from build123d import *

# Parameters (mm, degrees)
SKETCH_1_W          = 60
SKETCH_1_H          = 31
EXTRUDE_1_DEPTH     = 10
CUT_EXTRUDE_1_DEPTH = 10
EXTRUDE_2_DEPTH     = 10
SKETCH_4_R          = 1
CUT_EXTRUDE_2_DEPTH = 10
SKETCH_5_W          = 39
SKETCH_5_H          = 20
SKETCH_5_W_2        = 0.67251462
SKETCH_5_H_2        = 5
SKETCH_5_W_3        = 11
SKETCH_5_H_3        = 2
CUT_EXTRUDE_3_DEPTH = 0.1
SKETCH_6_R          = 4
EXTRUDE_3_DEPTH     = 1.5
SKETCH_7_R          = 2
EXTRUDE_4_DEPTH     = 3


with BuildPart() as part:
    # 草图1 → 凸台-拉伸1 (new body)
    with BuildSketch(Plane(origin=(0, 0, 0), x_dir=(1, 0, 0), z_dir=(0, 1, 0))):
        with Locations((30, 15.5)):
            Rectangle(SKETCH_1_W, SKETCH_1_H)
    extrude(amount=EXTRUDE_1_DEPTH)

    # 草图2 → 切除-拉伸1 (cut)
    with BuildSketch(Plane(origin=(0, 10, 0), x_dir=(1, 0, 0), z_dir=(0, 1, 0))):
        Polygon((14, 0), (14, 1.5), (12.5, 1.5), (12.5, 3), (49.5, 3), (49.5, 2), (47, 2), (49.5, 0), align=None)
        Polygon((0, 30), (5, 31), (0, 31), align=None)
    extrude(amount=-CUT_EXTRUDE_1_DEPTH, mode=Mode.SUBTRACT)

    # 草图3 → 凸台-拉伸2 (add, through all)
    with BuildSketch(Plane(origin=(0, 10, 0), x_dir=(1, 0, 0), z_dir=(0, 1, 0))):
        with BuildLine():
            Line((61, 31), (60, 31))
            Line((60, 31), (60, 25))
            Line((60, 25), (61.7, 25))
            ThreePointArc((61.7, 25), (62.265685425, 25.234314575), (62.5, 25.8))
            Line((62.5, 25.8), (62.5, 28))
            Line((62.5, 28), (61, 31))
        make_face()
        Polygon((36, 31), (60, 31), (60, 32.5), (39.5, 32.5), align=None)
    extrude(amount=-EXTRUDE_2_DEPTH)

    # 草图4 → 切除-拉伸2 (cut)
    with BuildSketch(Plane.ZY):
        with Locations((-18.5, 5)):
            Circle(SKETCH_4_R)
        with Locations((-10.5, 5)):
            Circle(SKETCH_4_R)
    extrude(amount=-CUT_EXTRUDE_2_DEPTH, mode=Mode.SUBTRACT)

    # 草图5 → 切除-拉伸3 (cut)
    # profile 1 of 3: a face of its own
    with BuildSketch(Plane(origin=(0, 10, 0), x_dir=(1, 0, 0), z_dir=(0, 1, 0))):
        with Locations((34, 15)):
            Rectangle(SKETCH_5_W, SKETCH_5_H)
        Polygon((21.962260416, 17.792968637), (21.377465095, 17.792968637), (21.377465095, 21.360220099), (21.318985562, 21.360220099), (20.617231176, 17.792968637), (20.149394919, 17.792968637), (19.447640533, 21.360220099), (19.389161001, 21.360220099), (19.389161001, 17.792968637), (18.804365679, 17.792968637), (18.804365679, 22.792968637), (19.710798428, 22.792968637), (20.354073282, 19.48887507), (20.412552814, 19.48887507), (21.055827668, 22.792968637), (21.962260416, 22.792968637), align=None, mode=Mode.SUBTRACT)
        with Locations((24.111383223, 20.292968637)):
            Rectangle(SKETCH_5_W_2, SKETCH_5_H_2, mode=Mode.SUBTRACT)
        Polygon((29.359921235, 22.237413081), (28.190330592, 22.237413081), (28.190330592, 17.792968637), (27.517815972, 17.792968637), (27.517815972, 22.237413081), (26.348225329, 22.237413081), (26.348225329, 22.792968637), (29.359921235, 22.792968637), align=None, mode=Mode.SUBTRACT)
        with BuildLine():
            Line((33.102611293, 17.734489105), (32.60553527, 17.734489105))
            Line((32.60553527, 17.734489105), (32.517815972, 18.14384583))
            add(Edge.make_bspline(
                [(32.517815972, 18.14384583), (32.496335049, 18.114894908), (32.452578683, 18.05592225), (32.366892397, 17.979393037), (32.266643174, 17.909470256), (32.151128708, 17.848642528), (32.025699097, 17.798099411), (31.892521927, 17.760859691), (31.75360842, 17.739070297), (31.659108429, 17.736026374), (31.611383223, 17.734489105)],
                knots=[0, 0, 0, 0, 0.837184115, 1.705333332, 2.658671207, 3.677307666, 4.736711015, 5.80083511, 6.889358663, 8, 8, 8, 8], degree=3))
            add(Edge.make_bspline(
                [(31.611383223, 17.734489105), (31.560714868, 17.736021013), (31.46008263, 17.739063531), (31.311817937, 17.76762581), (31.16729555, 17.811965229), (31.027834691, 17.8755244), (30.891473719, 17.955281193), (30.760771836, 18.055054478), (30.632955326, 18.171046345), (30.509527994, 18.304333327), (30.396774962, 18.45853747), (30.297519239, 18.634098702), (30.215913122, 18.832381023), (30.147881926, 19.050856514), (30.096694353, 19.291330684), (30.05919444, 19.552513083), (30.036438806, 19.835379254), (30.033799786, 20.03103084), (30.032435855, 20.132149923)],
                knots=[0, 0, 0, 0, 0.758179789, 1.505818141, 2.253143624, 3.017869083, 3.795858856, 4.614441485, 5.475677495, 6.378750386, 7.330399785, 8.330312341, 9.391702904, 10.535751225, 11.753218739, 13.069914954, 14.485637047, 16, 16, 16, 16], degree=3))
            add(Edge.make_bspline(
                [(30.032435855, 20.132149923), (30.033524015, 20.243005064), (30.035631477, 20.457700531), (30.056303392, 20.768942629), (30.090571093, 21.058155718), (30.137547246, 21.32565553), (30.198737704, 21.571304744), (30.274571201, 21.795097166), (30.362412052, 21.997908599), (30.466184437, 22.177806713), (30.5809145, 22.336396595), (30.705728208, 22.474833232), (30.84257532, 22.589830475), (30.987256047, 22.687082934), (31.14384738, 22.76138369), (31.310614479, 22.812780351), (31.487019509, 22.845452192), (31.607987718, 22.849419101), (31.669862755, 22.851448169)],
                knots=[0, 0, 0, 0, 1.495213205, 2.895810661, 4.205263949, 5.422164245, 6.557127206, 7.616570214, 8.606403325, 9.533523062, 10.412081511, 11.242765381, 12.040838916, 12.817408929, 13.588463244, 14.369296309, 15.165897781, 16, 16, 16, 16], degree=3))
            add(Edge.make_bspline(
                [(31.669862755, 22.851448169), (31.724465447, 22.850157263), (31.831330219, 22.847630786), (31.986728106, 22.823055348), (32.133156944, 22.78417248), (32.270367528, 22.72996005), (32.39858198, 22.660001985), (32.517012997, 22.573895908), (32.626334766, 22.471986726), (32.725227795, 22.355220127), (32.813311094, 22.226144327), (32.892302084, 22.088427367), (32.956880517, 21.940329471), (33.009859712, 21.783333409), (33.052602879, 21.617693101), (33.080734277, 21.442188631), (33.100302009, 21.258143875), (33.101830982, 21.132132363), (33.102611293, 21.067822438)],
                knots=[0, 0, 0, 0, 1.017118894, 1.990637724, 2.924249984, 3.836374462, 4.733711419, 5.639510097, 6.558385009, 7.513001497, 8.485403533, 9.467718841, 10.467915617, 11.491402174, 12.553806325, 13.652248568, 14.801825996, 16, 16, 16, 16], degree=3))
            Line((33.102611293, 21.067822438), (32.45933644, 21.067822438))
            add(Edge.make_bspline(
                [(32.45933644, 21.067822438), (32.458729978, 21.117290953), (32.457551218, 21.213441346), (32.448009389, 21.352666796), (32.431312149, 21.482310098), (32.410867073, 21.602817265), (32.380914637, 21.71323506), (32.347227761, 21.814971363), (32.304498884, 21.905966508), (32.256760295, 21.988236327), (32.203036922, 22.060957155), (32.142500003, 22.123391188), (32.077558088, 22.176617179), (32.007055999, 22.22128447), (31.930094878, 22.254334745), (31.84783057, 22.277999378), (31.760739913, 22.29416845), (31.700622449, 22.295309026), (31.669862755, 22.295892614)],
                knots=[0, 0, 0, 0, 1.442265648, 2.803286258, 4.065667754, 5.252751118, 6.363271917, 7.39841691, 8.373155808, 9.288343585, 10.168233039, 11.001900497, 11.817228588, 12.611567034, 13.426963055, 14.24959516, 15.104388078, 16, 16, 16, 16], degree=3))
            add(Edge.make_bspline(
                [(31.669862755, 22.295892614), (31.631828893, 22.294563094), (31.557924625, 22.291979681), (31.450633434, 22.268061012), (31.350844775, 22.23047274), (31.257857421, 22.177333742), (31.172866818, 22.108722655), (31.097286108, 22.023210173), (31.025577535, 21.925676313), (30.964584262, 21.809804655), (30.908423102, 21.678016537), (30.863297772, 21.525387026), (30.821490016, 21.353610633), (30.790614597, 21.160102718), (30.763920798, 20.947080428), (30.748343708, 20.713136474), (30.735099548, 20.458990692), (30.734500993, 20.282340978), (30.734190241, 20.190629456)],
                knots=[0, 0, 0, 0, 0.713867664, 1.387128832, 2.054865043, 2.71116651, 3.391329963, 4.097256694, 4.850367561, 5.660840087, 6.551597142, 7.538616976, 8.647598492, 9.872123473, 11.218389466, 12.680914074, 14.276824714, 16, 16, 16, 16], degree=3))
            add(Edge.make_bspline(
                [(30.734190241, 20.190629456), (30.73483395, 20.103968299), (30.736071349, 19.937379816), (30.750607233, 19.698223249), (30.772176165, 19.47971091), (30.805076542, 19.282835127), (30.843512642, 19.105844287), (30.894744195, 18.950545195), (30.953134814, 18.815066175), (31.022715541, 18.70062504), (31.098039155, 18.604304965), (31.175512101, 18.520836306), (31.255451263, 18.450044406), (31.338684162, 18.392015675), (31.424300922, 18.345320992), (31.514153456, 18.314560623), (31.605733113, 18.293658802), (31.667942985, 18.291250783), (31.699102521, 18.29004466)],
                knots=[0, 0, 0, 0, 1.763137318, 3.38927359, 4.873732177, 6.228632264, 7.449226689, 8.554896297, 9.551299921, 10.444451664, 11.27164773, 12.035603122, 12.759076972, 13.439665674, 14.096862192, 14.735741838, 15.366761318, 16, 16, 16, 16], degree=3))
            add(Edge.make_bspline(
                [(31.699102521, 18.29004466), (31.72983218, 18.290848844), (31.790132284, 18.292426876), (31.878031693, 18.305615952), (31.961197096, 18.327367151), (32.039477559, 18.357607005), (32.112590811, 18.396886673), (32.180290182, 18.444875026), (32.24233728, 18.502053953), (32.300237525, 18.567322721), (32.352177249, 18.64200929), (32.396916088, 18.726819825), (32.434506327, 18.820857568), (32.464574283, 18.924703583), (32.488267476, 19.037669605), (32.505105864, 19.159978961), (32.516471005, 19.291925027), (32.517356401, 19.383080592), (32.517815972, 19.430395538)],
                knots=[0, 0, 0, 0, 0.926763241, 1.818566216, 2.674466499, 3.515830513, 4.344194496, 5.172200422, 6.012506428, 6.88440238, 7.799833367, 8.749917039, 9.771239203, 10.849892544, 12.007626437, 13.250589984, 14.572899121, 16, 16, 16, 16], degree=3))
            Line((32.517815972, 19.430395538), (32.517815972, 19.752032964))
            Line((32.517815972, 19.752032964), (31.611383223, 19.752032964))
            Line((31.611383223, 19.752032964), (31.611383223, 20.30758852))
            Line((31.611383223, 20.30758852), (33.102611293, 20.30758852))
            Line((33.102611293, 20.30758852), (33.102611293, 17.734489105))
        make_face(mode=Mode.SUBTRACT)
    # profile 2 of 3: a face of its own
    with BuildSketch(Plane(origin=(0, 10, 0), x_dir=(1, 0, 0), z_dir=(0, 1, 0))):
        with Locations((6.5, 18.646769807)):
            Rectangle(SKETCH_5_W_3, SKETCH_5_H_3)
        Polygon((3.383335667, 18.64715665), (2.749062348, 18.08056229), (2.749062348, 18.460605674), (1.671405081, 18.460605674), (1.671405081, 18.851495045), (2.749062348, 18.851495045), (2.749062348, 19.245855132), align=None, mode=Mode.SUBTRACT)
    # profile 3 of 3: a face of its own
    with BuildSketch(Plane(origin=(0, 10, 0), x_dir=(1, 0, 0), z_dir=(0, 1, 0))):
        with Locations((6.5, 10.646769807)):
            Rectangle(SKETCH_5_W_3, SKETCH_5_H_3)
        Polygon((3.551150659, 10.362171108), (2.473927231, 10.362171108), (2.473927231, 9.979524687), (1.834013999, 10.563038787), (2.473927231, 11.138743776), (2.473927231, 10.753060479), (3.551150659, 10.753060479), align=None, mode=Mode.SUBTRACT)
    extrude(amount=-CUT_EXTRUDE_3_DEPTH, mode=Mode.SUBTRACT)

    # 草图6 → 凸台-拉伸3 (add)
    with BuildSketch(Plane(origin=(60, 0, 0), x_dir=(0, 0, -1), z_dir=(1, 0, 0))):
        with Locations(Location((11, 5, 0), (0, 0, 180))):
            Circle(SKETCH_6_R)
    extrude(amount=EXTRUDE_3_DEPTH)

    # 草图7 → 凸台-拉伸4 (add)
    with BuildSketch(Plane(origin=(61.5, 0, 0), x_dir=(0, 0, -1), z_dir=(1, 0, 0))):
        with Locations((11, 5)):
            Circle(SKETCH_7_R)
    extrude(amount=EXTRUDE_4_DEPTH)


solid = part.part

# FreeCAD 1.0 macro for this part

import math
import FreeCAD as App
import Part
import Sketcher

V = App.Vector
Q = App.Units.Quantity

doc = App.newDocument("Part")
body = doc.addObject("PartDesign::Body", "Body")

sketch1 = body.newObject("Sketcher::SketchObject", "Sketch")
sketch1.AttachmentSupport = (doc.getObject("XZ_Plane"), [""])
sketch1.MapMode = "FlatFace"
sketch1.addGeometry(Part.LineSegment(V(0, -31, 0), V(0, 0, 0)), False)
sketch1.addGeometry(Part.LineSegment(V(0, 0, 0), V(60, 0, 0)), False)
sketch1.addGeometry(Part.LineSegment(V(60, 0, 0), V(60, -31, 0)), False)
sketch1.addGeometry(Part.LineSegment(V(60, -31, 0), V(0, -31, 0)), False)
sketch1.addConstraint(Sketcher.Constraint("Coincident", 0, 2, 1, 1))
sketch1.addConstraint(Sketcher.Constraint("Coincident", 1, 2, 2, 1))
sketch1.addConstraint(Sketcher.Constraint("Coincident", 2, 2, 3, 1))
sketch1.addConstraint(Sketcher.Constraint("Coincident", 3, 2, 0, 1))
sketch1.addConstraint(Sketcher.Constraint("Vertical", 0))
sketch1.addConstraint(Sketcher.Constraint("Horizontal", 1))
sketch1.addConstraint(Sketcher.Constraint("Vertical", 2))
sketch1.addConstraint(Sketcher.Constraint("Horizontal", 3))
sketch1.addConstraint(Sketcher.Constraint("Coincident", 0, 2, -1, 1))
sketch1.addConstraint(Sketcher.Constraint("DistanceX", 1, 1, 1, 2, Q("60 mm")))
sketch1.addConstraint(Sketcher.Constraint("DistanceY", 0, 1, 0, 2, Q("31 mm")))
pad1 = body.newObject("PartDesign::Pad", "Pad")
pad1.Profile = sketch1
pad1.Length = 10
pad1.Reversed = True

sketch2 = body.newObject("Sketcher::SketchObject", "Sketch001")
sketch2.AttachmentSupport = (doc.getObject("XZ_Plane"), [""])
sketch2.MapMode = "FlatFace"
sketch2.AttachmentOffset = App.Placement(V(0, 0, -10), App.Rotation())
sketch2.addGeometry(Part.LineSegment(V(14, -1.5, 0), V(14, 0, 0)), False)
sketch2.addGeometry(Part.LineSegment(V(14, 0, 0), V(49.5, 0, 0)), False)
sketch2.addGeometry(Part.LineSegment(V(49.5, 0, 0), V(47, -2, 0)), False)
sketch2.addGeometry(Part.LineSegment(V(47, -2, 0), V(49.5, -2, 0)), False)
sketch2.addGeometry(Part.LineSegment(V(49.5, -2, 0), V(49.5, -3, 0)), False)
sketch2.addGeometry(Part.LineSegment(V(49.5, -3, 0), V(12.5, -3, 0)), False)
sketch2.addGeometry(Part.LineSegment(V(12.5, -3, 0), V(12.5, -1.5, 0)), False)
sketch2.addGeometry(Part.LineSegment(V(12.5, -1.5, 0), V(14, -1.5, 0)), False)
sketch2.addGeometry(Part.LineSegment(V(0, -30, 0), V(5, -31, 0)), False)
sketch2.addGeometry(Part.LineSegment(V(5, -31, 0), V(0, -31, 0)), False)
sketch2.addGeometry(Part.LineSegment(V(0, -31, 0), V(0, -30, 0)), False)
sketch2.addConstraint(Sketcher.Constraint("Coincident", 0, 2, 1, 1))
sketch2.addConstraint(Sketcher.Constraint("Coincident", 1, 2, 2, 1))
sketch2.addConstraint(Sketcher.Constraint("Coincident", 2, 2, 3, 1))
sketch2.addConstraint(Sketcher.Constraint("Coincident", 3, 2, 4, 1))
sketch2.addConstraint(Sketcher.Constraint("Coincident", 4, 2, 5, 1))
sketch2.addConstraint(Sketcher.Constraint("Coincident", 5, 2, 6, 1))
sketch2.addConstraint(Sketcher.Constraint("Coincident", 6, 2, 7, 1))
sketch2.addConstraint(Sketcher.Constraint("Coincident", 7, 2, 0, 1))
sketch2.addConstraint(Sketcher.Constraint("Coincident", 8, 2, 9, 1))
sketch2.addConstraint(Sketcher.Constraint("Coincident", 9, 2, 10, 1))
sketch2.addConstraint(Sketcher.Constraint("Coincident", 10, 2, 8, 1))
sketch2.addConstraint(Sketcher.Constraint("Vertical", 0))
sketch2.addConstraint(Sketcher.Constraint("Horizontal", 1))
sketch2.addConstraint(Sketcher.Constraint("Horizontal", 3))
sketch2.addConstraint(Sketcher.Constraint("Vertical", 4))
sketch2.addConstraint(Sketcher.Constraint("Horizontal", 5))
sketch2.addConstraint(Sketcher.Constraint("Vertical", 6))
sketch2.addConstraint(Sketcher.Constraint("Horizontal", 7))
sketch2.addConstraint(Sketcher.Constraint("Horizontal", 9))
sketch2.addConstraint(Sketcher.Constraint("Vertical", 10))
sketch2.addConstraint(Sketcher.Constraint("PointOnObject", 0, 2, -1))
sketch2.addConstraint(Sketcher.Constraint("PointOnObject", 9, 2, -2))
sketch2.addConstraint(Sketcher.Constraint("Vertical", 1, 2, 3, 2))
sketch2.addConstraint(Sketcher.Constraint("Equal", 7, 0))
sketch2.addConstraint(Sketcher.Constraint("Equal", 0, 6))
sketch2.addConstraint(Sketcher.Constraint("Equal", 4, 10))
sketch2.addConstraint(Sketcher.Constraint("DistanceX", 5, 2, 5, 1, Q("37 mm")))
sketch2.addConstraint(Sketcher.Constraint("DistanceX", 9, 2, 9, 1, Q("5 mm")))
sketch2.addConstraint(Sketcher.Constraint("DistanceY", 4, 2, 4, 1, Q("1 mm")))
sketch2.addConstraint(Sketcher.Constraint("DistanceX", 1, 1, 1, 2, Q("35.5 mm")))
sketch2.addConstraint(Sketcher.Constraint("DistanceX", 3, 1, 3, 2, Q("2.5 mm")))
sketch2.addConstraint(Sketcher.Constraint("DistanceX", -1, 1, 0, 2, Q("14 mm")))
sketch2.addConstraint(Sketcher.Constraint("DistanceY", 8, 2, -1, 1, Q("31 mm")))
pocket1 = body.newObject("PartDesign::Pocket", "Pocket")
pocket1.Profile = sketch2
pocket1.Length = 10
pocket1.Reversed = True

sketch3 = body.newObject("Sketcher::SketchObject", "Sketch002")
sketch3.AttachmentSupport = (doc.getObject("XZ_Plane"), [""])
sketch3.MapMode = "FlatFace"
sketch3.AttachmentOffset = App.Placement(V(0, 0, -10), App.Rotation())
sketch3.addGeometry(Part.LineSegment(V(61, -31, 0), V(60, -31, 0)), False)
sketch3.addGeometry(Part.LineSegment(V(60, -31, 0), V(60, -25, 0)), False)
sketch3.addGeometry(Part.LineSegment(V(60, -25, 0), V(61.7, -25, 0)), False)
sketch3.addGeometry(Part.ArcOfCircle(Part.Circle(V(61.7, -25.8, 0), V(0, 0, 1), 0.8), math.radians(0), math.radians(90)), False)
sketch3.addGeometry(Part.LineSegment(V(62.5, -25.8, 0), V(62.5, -28, 0)), False)
sketch3.addGeometry(Part.LineSegment(V(62.5, -28, 0), V(61, -31, 0)), False)
sketch3.addGeometry(Part.LineSegment(V(36, -31, 0), V(60, -31, 0)), False)
sketch3.addGeometry(Part.LineSegment(V(60, -31, 0), V(60, -32.5, 0)), False)
sketch3.addGeometry(Part.LineSegment(V(60, -32.5, 0), V(39.5, -32.5, 0)), False)
sketch3.addGeometry(Part.LineSegment(V(39.5, -32.5, 0), V(36, -31, 0)), False)
sketch3.addConstraint(Sketcher.Constraint("Coincident", 0, 2, 1, 1))
sketch3.addConstraint(Sketcher.Constraint("Coincident", 1, 2, 2, 1))
sketch3.addConstraint(Sketcher.Constraint("Tangent", 2, 2, 3, 2))
sketch3.addConstraint(Sketcher.Constraint("Tangent", 3, 1, 4, 1))
sketch3.addConstraint(Sketcher.Constraint("Coincident", 4, 2, 5, 1))
sketch3.addConstraint(Sketcher.Constraint("Coincident", 5, 2, 0, 1))
sketch3.addConstraint(Sketcher.Constraint("Coincident", 6, 2, 7, 1))
sketch3.addConstraint(Sketcher.Constraint("Coincident", 7, 2, 8, 1))
sketch3.addConstraint(Sketcher.Constraint("Coincident", 8, 2, 9, 1))
sketch3.addConstraint(Sketcher.Constraint("Coincident", 9, 2, 6, 1))
sketch3.addConstraint(Sketcher.Constraint("Horizontal", 0))
sketch3.addConstraint(Sketcher.Constraint("Vertical", 1))
sketch3.addConstraint(Sketcher.Constraint("Horizontal", 2))
sketch3.addConstraint(Sketcher.Constraint("Vertical", 4))
sketch3.addConstraint(Sketcher.Constraint("Horizontal", 6))
sketch3.addConstraint(Sketcher.Constraint("Vertical", 7))
sketch3.addConstraint(Sketcher.Constraint("Horizontal", 8))
sketch3.addConstraint(Sketcher.Constraint("Coincident", 6, 2, 0, 2))
sketch3.addConstraint(Sketcher.Constraint("Radius", 3, Q("0.8 mm")))
sketch3.addConstraint(Sketcher.Constraint("DistanceX", 0, 2, 0, 1, Q("1 mm")))
sketch3.addConstraint(Sketcher.Constraint("DistanceX", 6, 1, 6, 2, Q("24 mm")))
sketch3.addConstraint(Sketcher.Constraint("DistanceY", 1, 1, 1, 2, Q("6 mm")))
sketch3.addConstraint(Sketcher.Constraint("DistanceX", 2, 1, 2, 2, Q("1.7 mm")))
sketch3.addConstraint(Sketcher.Constraint("DistanceX", 8, 2, 8, 1, Q("20.5 mm")))
sketch3.addConstraint(Sketcher.Constraint("DistanceY", 4, 2, 4, 1, Q("2.2 mm")))
sketch3.addConstraint(Sketcher.Constraint("DistanceY", 7, 2, 7, 1, Q("1.5 mm")))
sketch3.addConstraint(Sketcher.Constraint("DistanceX", -1, 1, 0, 2, Q("60 mm")))
sketch3.addConstraint(Sketcher.Constraint("DistanceY", 0, 2, -1, 1, Q("31 mm")))
pad2 = body.newObject("PartDesign::Pad", "Pad001")
pad2.Profile = sketch3
pad2.Type = "UpToLast"

sketch4 = body.newObject("Sketcher::SketchObject", "Sketch003")
sketch4.AttachmentSupport = (doc.getObject("YZ_Plane"), [""])
sketch4.MapMode = "FlatFace"
sketch4.addGeometry(Part.Circle(V(5, -18.5, 0), V(0, 0, 1), 1), False)
sketch4.addGeometry(Part.Circle(V(5, -10.5, 0), V(0, 0, 1), 1), False)
sketch4.addConstraint(Sketcher.Constraint("Equal", 0, 1))
sketch4.addConstraint(Sketcher.Constraint("Vertical", 0, 3, 1, 3))
sketch4.addConstraint(Sketcher.Constraint("Diameter", 0, Q("2 mm")))
sketch4.addConstraint(Sketcher.Constraint("DistanceX", -1, 1, 0, 3, Q("5 mm")))
sketch4.addConstraint(Sketcher.Constraint("DistanceY", 0, 3, 1, 3, Q("8 mm")))
sketch4.addConstraint(Sketcher.Constraint("DistanceY", 0, 3, -1, 1, Q("18.5 mm")))
pocket2 = body.newObject("PartDesign::Pocket", "Pocket001")
pocket2.Profile = sketch4
pocket2.Length = 10
pocket2.Reversed = True

sketch5 = body.newObject("Sketcher::SketchObject", "Sketch004")
sketch5.AttachmentSupport = (doc.getObject("XZ_Plane"), [""])
sketch5.MapMode = "FlatFace"
sketch5.AttachmentOffset = App.Placement(V(0, 0, -10), App.Rotation())
sketch5.addGeometry(Part.LineSegment(V(14.5, -25, 0), V(14.5, -5, 0)), False)
sketch5.addGeometry(Part.LineSegment(V(14.5, -5, 0), V(53.5, -5, 0)), False)
sketch5.addGeometry(Part.LineSegment(V(53.5, -5, 0), V(53.5, -25, 0)), False)
sketch5.addGeometry(Part.LineSegment(V(53.5, -25, 0), V(14.5, -25, 0)), False)
sketch5.addGeometry(Part.LineSegment(V(21.96226, -22.792969, 0), V(21.96226, -17.792969, 0)), False)
sketch5.addGeometry(Part.LineSegment(V(21.96226, -17.792969, 0), V(21.377465, -17.792969, 0)), False)
sketch5.addGeometry(Part.LineSegment(V(21.377465, -17.792969, 0), V(21.377465, -21.36022, 0)), False)
sketch5.addGeometry(Part.LineSegment(V(21.377465, -21.36022, 0), V(21.318986, -21.36022, 0)), False)
sketch5.addGeometry(Part.LineSegment(V(21.318986, -21.36022, 0), V(20.617231, -17.792969, 0)), False)
sketch5.addGeometry(Part.LineSegment(V(20.617231, -17.792969, 0), V(20.149395, -17.792969, 0)), False)
sketch5.addGeometry(Part.LineSegment(V(20.149395, -17.792969, 0), V(19.447641, -21.36022, 0)), False)
sketch5.addGeometry(Part.LineSegment(V(19.447641, -21.36022, 0), V(19.389161, -21.36022, 0)), False)
sketch5.addGeometry(Part.LineSegment(V(19.389161, -21.36022, 0), V(19.389161, -17.792969, 0)), False)
sketch5.addGeometry(Part.LineSegment(V(19.389161, -17.792969, 0), V(18.804366, -17.792969, 0)), False)
sketch5.addGeometry(Part.LineSegment(V(18.804366, -17.792969, 0), V(18.804366, -22.792969, 0)), False)
sketch5.addGeometry(Part.LineSegment(V(18.804366, -22.792969, 0), V(19.710798, -22.792969, 0)), False)
sketch5.addGeometry(Part.LineSegment(V(19.710798, -22.792969, 0), V(20.354073, -19.488875, 0)), False)
sketch5.addGeometry(Part.LineSegment(V(20.354073, -19.488875, 0), V(20.412553, -19.488875, 0)), False)
sketch5.addGeometry(Part.LineSegment(V(20.412553, -19.488875, 0), V(21.055828, -22.792969, 0)), False)
sketch5.addGeometry(Part.LineSegment(V(21.055828, -22.792969, 0), V(21.96226, -22.792969, 0)), False)
sketch5.addGeometry(Part.LineSegment(V(24.447641, -17.792969, 0), V(23.775126, -17.792969, 0)), False)
sketch5.addGeometry(Part.LineSegment(V(23.775126, -17.792969, 0), V(23.775126, -22.792969, 0)), False)
sketch5.addGeometry(Part.LineSegment(V(23.775126, -22.792969, 0), V(24.447641, -22.792969, 0)), False)
sketch5.addGeometry(Part.LineSegment(V(24.447641, -22.792969, 0), V(24.447641, -17.792969, 0)), False)
sketch5.addGeometry(Part.LineSegment(V(29.359921, -22.792969, 0), V(29.359921, -22.237413, 0)), False)
sketch5.addGeometry(Part.LineSegment(V(29.359921, -22.237413, 0), V(28.190331, -22.237413, 0)), False)
sketch5.addGeometry(Part.LineSegment(V(28.190331, -22.237413, 0), V(28.190331, -17.792969, 0)), False)
sketch5.addGeometry(Part.LineSegment(V(28.190331, -17.792969, 0), V(27.517816, -17.792969, 0)), False)
sketch5.addGeometry(Part.LineSegment(V(27.517816, -17.792969, 0), V(27.517816, -22.237413, 0)), False)
sketch5.addGeometry(Part.LineSegment(V(27.517816, -22.237413, 0), V(26.348225, -22.237413, 0)), False)
sketch5.addGeometry(Part.LineSegment(V(26.348225, -22.237413, 0), V(26.348225, -22.792969, 0)), False)
sketch5.addGeometry(Part.LineSegment(V(26.348225, -22.792969, 0), V(29.359921, -22.792969, 0)), False)
sketch5.addGeometry(Part.LineSegment(V(33.102611, -20.307589, 0), V(33.102611, -17.734489, 0)), False)
sketch5.addGeometry(Part.LineSegment(V(33.102611, -17.734489, 0), V(32.605535, -17.734489, 0)), False)
sketch5.addGeometry(Part.LineSegment(V(32.605535, -17.734489, 0), V(32.517816, -18.143846, 0)), False)
sketch5.addGeometry(Part.BSplineCurve([V(32.517816, -18.143846, 0), V(32.496335, -18.114895, 0), V(32.452579, -18.055922, 0), V(32.366892, -17.979393, 0), V(32.266643, -17.90947, 0), V(32.151129, -17.848643, 0), V(32.025699, -17.798099, 0), V(31.892522, -17.76086, 0), V(31.753608, -17.73907, 0), V(31.659108, -17.736026, 0), V(31.611383, -17.734489, 0)], [4, 1, 1, 1, 1, 1, 1, 1, 4], [0, 0.837184115, 1.705333332, 2.658671207, 3.677307666, 4.736711015, 5.80083511, 6.889358663, 8], False, 3, [1, 1, 1, 1, 1, 1, 1, 1, 1, 1, 1], False), False)
sketch5.addGeometry(Part.BSplineCurve([V(31.611383, -17.734489, 0), V(31.560715, -17.736021, 0), V(31.460083, -17.739064, 0), V(31.311818, -17.767626, 0), V(31.167296, -17.811965, 0), V(31.027835, -17.875524, 0), V(30.891474, -17.955281, 0), V(30.760772, -18.055054, 0), V(30.632955, -18.171046, 0), V(30.509528, -18.304333, 0), V(30.396775, -18.458537, 0), V(30.297519, -18.634099, 0), V(30.215913, -18.832381, 0), V(30.147882, -19.050857, 0), V(30.096694, -19.291331, 0), V(30.059194, -19.552513, 0), V(30.036439, -19.835379, 0), V(30.0338, -20.031031, 0), V(30.032436, -20.13215, 0)], [4, 1, 1, 1, 1, 1, 1, 1, 1, 1, 1, 1, 1, 1, 1, 1, 4], [0, 0.758179789, 1.505818141, 2.253143624, 3.017869083, 3.795858856, 4.614441485, 5.475677495, 6.378750386, 7.330399785, 8.330312341, 9.391702904, 10.535751225, 11.753218739, 13.069914954, 14.485637047, 16], False, 3, [1, 1, 1, 1, 1, 1, 1, 1, 1, 1, 1, 1, 1, 1, 1, 1, 1, 1, 1], False), False)
sketch5.addGeometry(Part.BSplineCurve([V(30.032436, -20.13215, 0), V(30.033524, -20.243005, 0), V(30.035631, -20.457701, 0), V(30.056303, -20.768943, 0), V(30.090571, -21.058156, 0), V(30.137547, -21.325656, 0), V(30.198738, -21.571305, 0), V(30.274571, -21.795097, 0), V(30.362412, -21.997909, 0), V(30.466184, -22.177807, 0), V(30.580914, -22.336397, 0), V(30.705728, -22.474833, 0), V(30.842575, -22.58983, 0), V(30.987256, -22.687083, 0), V(31.143847, -22.761384, 0), V(31.310614, -22.81278, 0), V(31.48702, -22.845452, 0), V(31.607988, -22.849419, 0), V(31.669863, -22.851448, 0)], [4, 1, 1, 1, 1, 1, 1, 1, 1, 1, 1, 1, 1, 1, 1, 1, 4], [0, 1.495213205, 2.895810661, 4.205263949, 5.422164245, 6.557127206, 7.616570214, 8.606403325, 9.533523062, 10.412081511, 11.242765381, 12.040838916, 12.817408929, 13.588463244, 14.369296309, 15.165897781, 16], False, 3, [1, 1, 1, 1, 1, 1, 1, 1, 1, 1, 1, 1, 1, 1, 1, 1, 1, 1, 1], False), False)
sketch5.addGeometry(Part.BSplineCurve([V(31.669863, -22.851448, 0), V(31.724465, -22.850157, 0), V(31.83133, -22.847631, 0), V(31.986728, -22.823055, 0), V(32.133157, -22.784172, 0), V(32.270368, -22.72996, 0), V(32.398582, -22.660002, 0), V(32.517013, -22.573896, 0), V(32.626335, -22.471987, 0), V(32.725228, -22.35522, 0), V(32.813311, -22.226144, 0), V(32.892302, -22.088427, 0), V(32.956881, -21.940329, 0), V(33.00986, -21.783333, 0), V(33.052603, -21.617693, 0), V(33.080734, -21.442189, 0), V(33.100302, -21.258144, 0), V(33.101831, -21.132132, 0), V(33.102611, -21.067822, 0)], [4, 1, 1, 1, 1, 1, 1, 1, 1, 1, 1, 1, 1, 1, 1, 1, 4], [0, 1.017118894, 1.990637724, 2.924249984, 3.836374462, 4.733711419, 5.639510097, 6.558385009, 7.513001497, 8.485403533, 9.467718841, 10.467915617, 11.491402174, 12.553806325, 13.652248568, 14.801825996, 16], False, 3, [1, 1, 1, 1, 1, 1, 1, 1, 1, 1, 1, 1, 1, 1, 1, 1, 1, 1, 1], False), False)
sketch5.addGeometry(Part.LineSegment(V(33.102611, -21.067822, 0), V(32.459336, -21.067822, 0)), False)
sketch5.addGeometry(Part.BSplineCurve([V(32.459336, -21.067822, 0), V(32.45873, -21.117291, 0), V(32.457551, -21.213441, 0), V(32.448009, -21.352667, 0), V(32.431312, -21.48231, 0), V(32.410867, -21.602817, 0), V(32.380915, -21.713235, 0), V(32.347228, -21.814971, 0), V(32.304499, -21.905967, 0), V(32.25676, -21.988236, 0), V(32.203037, -22.060957, 0), V(32.1425, -22.123391, 0), V(32.077558, -22.176617, 0), V(32.007056, -22.221284, 0), V(31.930095, -22.254335, 0), V(31.847831, -22.277999, 0), V(31.76074, -22.294168, 0), V(31.700622, -22.295309, 0), V(31.669863, -22.295893, 0)], [4, 1, 1, 1, 1, 1, 1, 1, 1, 1, 1, 1, 1, 1, 1, 1, 4], [0, 1.442265648, 2.803286258, 4.065667754, 5.252751118, 6.363271917, 7.39841691, 8.373155808, 9.288343585, 10.168233039, 11.001900497, 11.817228588, 12.611567034, 13.426963055, 14.24959516, 15.104388078, 16], False, 3, [1, 1, 1, 1, 1, 1, 1, 1, 1, 1, 1, 1, 1, 1, 1, 1, 1, 1, 1], False), False)
sketch5.addGeometry(Part.BSplineCurve([V(31.669863, -22.295893, 0), V(31.631829, -22.294563, 0), V(31.557925, -22.29198, 0), V(31.450633, -22.268061, 0), V(31.350845, -22.230473, 0), V(31.257857, -22.177334, 0), V(31.172867, -22.108723, 0), V(31.097286, -22.02321, 0), V(31.025578, -21.925676, 0), V(30.964584, -21.809805, 0), V(30.908423, -21.678017, 0), V(30.863298, -21.525387, 0), V(30.82149, -21.353611, 0), V(30.790615, -21.160103, 0), V(30.763921, -20.94708, 0), V(30.748344, -20.713136, 0), V(30.7351, -20.458991, 0), V(30.734501, -20.282341, 0), V(30.73419, -20.190629, 0)], [4, 1, 1, 1, 1, 1, 1, 1, 1, 1, 1, 1, 1, 1, 1, 1, 4], [0, 0.713867664, 1.387128832, 2.054865043, 2.71116651, 3.391329963, 4.097256694, 4.850367561, 5.660840087, 6.551597142, 7.538616976, 8.647598492, 9.872123473, 11.218389466, 12.680914074, 14.276824714, 16], False, 3, [1, 1, 1, 1, 1, 1, 1, 1, 1, 1, 1, 1, 1, 1, 1, 1, 1, 1, 1], False), False)
sketch5.addGeometry(Part.BSplineCurve([V(30.73419, -20.190629, 0), V(30.734834, -20.103968, 0), V(30.736071, -19.93738, 0), V(30.750607, -19.698223, 0), V(30.772176, -19.479711, 0), V(30.805077, -19.282835, 0), V(30.843513, -19.105844, 0), V(30.894744, -18.950545, 0), V(30.953135, -18.815066, 0), V(31.022716, -18.700625, 0), V(31.098039, -18.604305, 0), V(31.175512, -18.520836, 0), V(31.255451, -18.450044, 0), V(31.338684, -18.392016, 0), V(31.424301, -18.345321, 0), V(31.514153, -18.314561, 0), V(31.605733, -18.293659, 0), V(31.667943, -18.291251, 0), V(31.699103, -18.290045, 0)], [4, 1, 1, 1, 1, 1, 1, 1, 1, 1, 1, 1, 1, 1, 1, 1, 4], [0, 1.763137318, 3.38927359, 4.873732177, 6.228632264, 7.449226689, 8.554896297, 9.551299921, 10.444451664, 11.27164773, 12.035603122, 12.759076972, 13.439665674, 14.096862192, 14.735741838, 15.366761318, 16], False, 3, [1, 1, 1, 1, 1, 1, 1, 1, 1, 1, 1, 1, 1, 1, 1, 1, 1, 1, 1], False), False)
sketch5.addGeometry(Part.BSplineCurve([V(31.699103, -18.290045, 0), V(31.729832, -18.290849, 0), V(31.790132, -18.292427, 0), V(31.878032, -18.305616, 0), V(31.961197, -18.327367, 0), V(32.039478, -18.357607, 0), V(32.112591, -18.396887, 0), V(32.18029, -18.444875, 0), V(32.242337, -18.502054, 0), V(32.300238, -18.567323, 0), V(32.352177, -18.642009, 0), V(32.396916, -18.72682, 0), V(32.434506, -18.820858, 0), V(32.464574, -18.924704, 0), V(32.488267, -19.03767, 0), V(32.505106, -19.159979, 0), V(32.516471, -19.291925, 0), V(32.517356, -19.383081, 0), V(32.517816, -19.430396, 0)], [4, 1, 1, 1, 1, 1, 1, 1, 1, 1, 1, 1, 1, 1, 1, 1, 4], [0, 0.926763241, 1.818566216, 2.674466499, 3.515830513, 4.344194496, 5.172200422, 6.012506428, 6.88440238, 7.799833367, 8.749917039, 9.771239203, 10.849892544, 12.007626437, 13.250589984, 14.572899121, 16], False, 3, [1, 1, 1, 1, 1, 1, 1, 1, 1, 1, 1, 1, 1, 1, 1, 1, 1, 1, 1], False), False)
sketch5.addGeometry(Part.LineSegment(V(32.517816, -19.430396, 0), V(32.517816, -19.752033, 0)), False)
sketch5.addGeometry(Part.LineSegment(V(32.517816, -19.752033, 0), V(31.611383, -19.752033, 0)), False)
sketch5.addGeometry(Part.LineSegment(V(31.611383, -19.752033, 0), V(31.611383, -20.307589, 0)), False)
sketch5.addGeometry(Part.LineSegment(V(31.611383, -20.307589, 0), V(33.102611, -20.307589, 0)), False)
sketch5.addGeometry(Part.LineSegment(V(1, -19.64677, 0), V(1, -17.64677, 0)), False)
sketch5.addGeometry(Part.LineSegment(V(1, -17.64677, 0), V(12, -17.64677, 0)), False)
sketch5.addGeometry(Part.LineSegment(V(12, -17.64677, 0), V(12, -19.64677, 0)), False)
sketch5.addGeometry(Part.LineSegment(V(12, -19.64677, 0), V(1, -19.64677, 0)), False)
sketch5.addGeometry(Part.LineSegment(V(2.749062, -19.245855, 0), V(3.383336, -18.647157, 0)), False)
sketch5.addGeometry(Part.LineSegment(V(3.383336, -18.647157, 0), V(2.749062, -18.080562, 0)), False)
sketch5.addGeometry(Part.LineSegment(V(2.749062, -18.080562, 0), V(2.749062, -18.460606, 0)), False)
sketch5.addGeometry(Part.LineSegment(V(2.749062, -18.460606, 0), V(1.671405, -18.460606, 0)), False)
sketch5.addGeometry(Part.LineSegment(V(1.671405, -18.460606, 0), V(1.671405, -18.851495, 0)), False)
sketch5.addGeometry(Part.LineSegment(V(1.671405, -18.851495, 0), V(2.749062, -18.851495, 0)), False)
sketch5.addGeometry(Part.LineSegment(V(2.749062, -18.851495, 0), V(2.749062, -19.245855, 0)), False)
sketch5.addGeometry(Part.LineSegment(V(1, -11.64677, 0), V(1, -9.64677, 0)), False)
sketch5.addGeometry(Part.LineSegment(V(1, -9.64677, 0), V(12, -9.64677, 0)), False)
sketch5.addGeometry(Part.LineSegment(V(12, -9.64677, 0), V(12, -11.64677, 0)), False)
sketch5.addGeometry(Part.LineSegment(V(12, -11.64677, 0), V(1, -11.64677, 0)), False)
sketch5.addGeometry(Part.LineSegment(V(3.551151, -10.75306, 0), V(3.551151, -10.362171, 0)), False)
sketch5.addGeometry(Part.LineSegment(V(3.551151, -10.362171, 0), V(2.473927, -10.362171, 0)), False)
sketch5.addGeometry(Part.LineSegment(V(2.473927, -10.362171, 0), V(2.473927, -9.979525, 0)), False)
sketch5.addGeometry(Part.LineSegment(V(2.473927, -9.979525, 0), V(1.834014, -10.563039, 0)), False)
sketch5.addGeometry(Part.LineSegment(V(1.834014, -10.563039, 0), V(2.473927, -11.138744, 0)), False)
sketch5.addGeometry(Part.LineSegment(V(2.473927, -11.138744, 0), V(2.473927, -10.75306, 0)), False)
sketch5.addGeometry(Part.LineSegment(V(2.473927, -10.75306, 0), V(3.551151, -10.75306, 0)), False)
sketch5.addConstraint(Sketcher.Constraint("Block", 35))
sketch5.addConstraint(Sketcher.Constraint("Block", 36))
sketch5.addConstraint(Sketcher.Constraint("Block", 37))
sketch5.addConstraint(Sketcher.Constraint("Block", 38))
sketch5.addConstraint(Sketcher.Constraint("Block", 40))
sketch5.addConstraint(Sketcher.Constraint("Block", 41))
sketch5.addConstraint(Sketcher.Constraint("Block", 42))
sketch5.addConstraint(Sketcher.Constraint("Block", 43))
sketch5.addConstraint(Sketcher.Constraint("Coincident", 0, 2, 1, 1))
sketch5.addConstraint(Sketcher.Constraint("Coincident", 1, 2, 2, 1))
sketch5.addConstraint(Sketcher.Constraint("Coincident", 2, 2, 3, 1))
sketch5.addConstraint(Sketcher.Constraint("Coincident", 3, 2, 0, 1))
sketch5.addConstraint(Sketcher.Constraint("Coincident", 4, 2, 5, 1))
sketch5.addConstraint(Sketcher.Constraint("Coincident", 5, 2, 6, 1))
sketch5.addConstraint(Sketcher.Constraint("Coincident", 6, 2, 7, 1))
sketch5.addConstraint(Sketcher.Constraint("Coincident", 7, 2, 8, 1))
sketch5.addConstraint(Sketcher.Constraint("Coincident", 8, 2, 9, 1))
sketch5.addConstraint(Sketcher.Constraint("Coincident", 9, 2, 10, 1))
sketch5.addConstraint(Sketcher.Constraint("Coincident", 10, 2, 11, 1))
sketch5.addConstraint(Sketcher.Constraint("Coincident", 11, 2, 12, 1))
sketch5.addConstraint(Sketcher.Constraint("Coincident", 12, 2, 13, 1))
sketch5.addConstraint(Sketcher.Constraint("Coincident", 13, 2, 14, 1))
sketch5.addConstraint(Sketcher.Constraint("Coincident", 14, 2, 15, 1))
sketch5.addConstraint(Sketcher.Constraint("Coincident", 15, 2, 16, 1))
sketch5.addConstraint(Sketcher.Constraint("Coincident", 16, 2, 17, 1))
sketch5.addConstraint(Sketcher.Constraint("Coincident", 17, 2, 18, 1))
sketch5.addConstraint(Sketcher.Constraint("Coincident", 18, 2, 19, 1))
sketch5.addConstraint(Sketcher.Constraint("Coincident", 19, 2, 4, 1))
sketch5.addConstraint(Sketcher.Constraint("Coincident", 20, 2, 21, 1))
sketch5.addConstraint(Sketcher.Constraint("Coincident", 21, 2, 22, 1))
sketch5.addConstraint(Sketcher.Constraint("Coincident", 22, 2, 23, 1))
sketch5.addConstraint(Sketcher.Constraint("Coincident", 23, 2, 20, 1))
sketch5.addConstraint(Sketcher.Constraint("Coincident", 24, 2, 25, 1))
sketch5.addConstraint(Sketcher.Constraint("Coincident", 25, 2, 26, 1))
sketch5.addConstraint(Sketcher.Constraint("Coincident", 26, 2, 27, 1))
sketch5.addConstraint(Sketcher.Constraint("Coincident", 27, 2, 28, 1))
sketch5.addConstraint(Sketcher.Constraint("Coincident", 28, 2, 29, 1))
sketch5.addConstraint(Sketcher.Constraint("Coincident", 29, 2, 30, 1))
sketch5.addConstraint(Sketcher.Constraint("Coincident", 30, 2, 31, 1))
sketch5.addConstraint(Sketcher.Constraint("Coincident", 31, 2, 24, 1))
sketch5.addConstraint(Sketcher.Constraint("Coincident", 32, 2, 33, 1))
sketch5.addConstraint(Sketcher.Constraint("Coincident", 33, 2, 34, 1))
sketch5.addConstraint(Sketcher.Constraint("Coincident", 34, 2, 35, 1))
sketch5.addConstraint(Sketcher.Constraint("Coincident", 38, 2, 39, 1))
sketch5.addConstraint(Sketcher.Constraint("Coincident", 39, 2, 40, 1))
sketch5.addConstraint(Sketcher.Constraint("Coincident", 43, 2, 44, 1))
sketch5.addConstraint(Sketcher.Constraint("Coincident", 44, 2, 45, 1))
sketch5.addConstraint(Sketcher.Constraint("Coincident", 45, 2, 46, 1))
sketch5.addConstraint(Sketcher.Constraint("Coincident", 46, 2, 47, 1))
sketch5.addConstraint(Sketcher.Constraint("Coincident", 47, 2, 32, 1))
sketch5.addConstraint(Sketcher.Constraint("Coincident", 48, 2, 49, 1))
sketch5.addConstraint(Sketcher.Constraint("Coincident", 49, 2, 50, 1))
sketch5.addConstraint(Sketcher.Constraint("Coincident", 50, 2, 51, 1))
sketch5.addConstraint(Sketcher.Constraint("Coincident", 51, 2, 48, 1))
sketch5.addConstraint(Sketcher.Constraint("Coincident", 52, 2, 53, 1))
sketch5.addConstraint(Sketcher.Constraint("Coincident", 53, 2, 54, 1))
sketch5.addConstraint(Sketcher.Constraint("Coincident", 54, 2, 55, 1))
sketch5.addConstraint(Sketcher.Constraint("Coincident", 55, 2, 56, 1))
sketch5.addConstraint(Sketcher.Constraint("Coincident", 56, 2, 57, 1))
sketch5.addConstraint(Sketcher.Constraint("Coincident", 57, 2, 58, 1))
sketch5.addConstraint(Sketcher.Constraint("Coincident", 58, 2, 52, 1))
sketch5.addConstraint(Sketcher.Constraint("Coincident", 59, 2, 60, 1))
sketch5.addConstraint(Sketcher.Constraint("Coincident", 60, 2, 61, 1))
sketch5.addConstraint(Sketcher.Constraint("Coincident", 61, 2, 62, 1))
sketch5.addConstraint(Sketcher.Constraint("Coincident", 62, 2, 59, 1))
sketch5.addConstraint(Sketcher.Constraint("Coincident", 63, 2, 64, 1))
sketch5.addConstraint(Sketcher.Constraint("Coincident", 64, 2, 65, 1))
sketch5.addConstraint(Sketcher.Constraint("Coincident", 65, 2, 66, 1))
sketch5.addConstraint(Sketcher.Constraint("Coincident", 66, 2, 67, 1))
sketch5.addConstraint(Sketcher.Constraint("Coincident", 67, 2, 68, 1))
sketch5.addConstraint(Sketcher.Constraint("Coincident", 68, 2, 69, 1))
sketch5.addConstraint(Sketcher.Constraint("Coincident", 69, 2, 63, 1))
sketch5.addConstraint(Sketcher.Constraint("Vertical", 0))
sketch5.addConstraint(Sketcher.Constraint("Horizontal", 1))
sketch5.addConstraint(Sketcher.Constraint("Vertical", 2))
sketch5.addConstraint(Sketcher.Constraint("Horizontal", 3))
sketch5.addConstraint(Sketcher.Constraint("Vertical", 4))
sketch5.addConstraint(Sketcher.Constraint("Horizontal", 5))
sketch5.addConstraint(Sketcher.Constraint("Vertical", 6))
sketch5.addConstraint(Sketcher.Constraint("Horizontal", 7))
sketch5.addConstraint(Sketcher.Constraint("Horizontal", 9))
sketch5.addConstraint(Sketcher.Constraint("Horizontal", 11))
sketch5.addConstraint(Sketcher.Constraint("Vertical", 12))
sketch5.addConstraint(Sketcher.Constraint("Horizontal", 13))
sketch5.addConstraint(Sketcher.Constraint("Vertical", 14))
sketch5.addConstraint(Sketcher.Constraint("Horizontal", 15))
sketch5.addConstraint(Sketcher.Constraint("Horizontal", 17))
sketch5.addConstraint(Sketcher.Constraint("Horizontal", 19))
sketch5.addConstraint(Sketcher.Constraint("Horizontal", 20))
sketch5.addConstraint(Sketcher.Constraint("Vertical", 21))
sketch5.addConstraint(Sketcher.Constraint("Horizontal", 22))
sketch5.addConstraint(Sketcher.Constraint("Vertical", 23))
sketch5.addConstraint(Sketcher.Constraint("Vertical", 24))
sketch5.addConstraint(Sketcher.Constraint("Horizontal", 25))
sketch5.addConstraint(Sketcher.Constraint("Vertical", 26))
sketch5.addConstraint(Sketcher.Constraint("Horizontal", 27))
sketch5.addConstraint(Sketcher.Constraint("Vertical", 28))
sketch5.addConstraint(Sketcher.Constraint("Horizontal", 29))
sketch5.addConstraint(Sketcher.Constraint("Vertical", 30))
sketch5.addConstraint(Sketcher.Constraint("Horizontal", 31))
sketch5.addConstraint(Sketcher.Constraint("Vertical", 32))
sketch5.addConstraint(Sketcher.Constraint("Horizontal", 33))
sketch5.addConstraint(Sketcher.Constraint("Vertical", 44))
sketch5.addConstraint(Sketcher.Constraint("Horizontal", 45))
sketch5.addConstraint(Sketcher.Constraint("Vertical", 46))
sketch5.addConstraint(Sketcher.Constraint("Horizontal", 47))
sketch5.addConstraint(Sketcher.Constraint("Vertical", 48))
sketch5.addConstraint(Sketcher.Constraint("Horizontal", 49))
sketch5.addConstraint(Sketcher.Constraint("Vertical", 50))
sketch5.addConstraint(Sketcher.Constraint("Horizontal", 51))
sketch5.addConstraint(Sketcher.Constraint("Vertical", 54))
sketch5.addConstraint(Sketcher.Constraint("Horizontal", 55))
sketch5.addConstraint(Sketcher.Constraint("Vertical", 56))
sketch5.addConstraint(Sketcher.Constraint("Horizontal", 57))
sketch5.addConstraint(Sketcher.Constraint("Vertical", 58))
sketch5.addConstraint(Sketcher.Constraint("Vertical", 59))
sketch5.addConstraint(Sketcher.Constraint("Horizontal", 60))
sketch5.addConstraint(Sketcher.Constraint("Vertical", 61))
sketch5.addConstraint(Sketcher.Constraint("Horizontal", 62))
sketch5.addConstraint(Sketcher.Constraint("Vertical", 63))
sketch5.addConstraint(Sketcher.Constraint("Horizontal", 64))
sketch5.addConstraint(Sketcher.Constraint("Vertical", 65))
sketch5.addConstraint(Sketcher.Constraint("Vertical", 68))
sketch5.addConstraint(Sketcher.Constraint("Horizontal", 69))
sketch5.addConstraint(Sketcher.Constraint("DistanceX", 1, 1, 1, 2, Q("39 mm")))
sketch5.addConstraint(Sketcher.Constraint("DistanceX", 49, 1, 49, 2, Q("11 mm")))
sketch5.addConstraint(Sketcher.Constraint("DistanceX", 60, 1, 60, 2, Q("11 mm")))
sketch5.addConstraint(Sketcher.Constraint("DistanceY", 0, 1, 0, 2, Q("20 mm")))
sketch5.addConstraint(Sketcher.Constraint("DistanceY", 4, 1, 4, 2, Q("5 mm")))
sketch5.addConstraint(Sketcher.Constraint("DistanceY", 14, 2, 14, 1, Q("5 mm")))
sketch5.addConstraint(Sketcher.Constraint("DistanceY", 21, 2, 21, 1, Q("5 mm")))
sketch5.addConstraint(Sketcher.Constraint("DistanceY", 48, 1, 48, 2, Q("2 mm")))
sketch5.addConstraint(Sketcher.Constraint("DistanceY", 59, 1, 59, 2, Q("2 mm")))
sketch5.addConstraint(Sketcher.Constraint("DistanceY", 0, 2, -1, 1, Q("5 mm")))
sketch5.addConstraint(Sketcher.Constraint("DistanceX", -1, 1, 48, 2, Q("1 mm")))
sketch5.addConstraint(Sketcher.Constraint("DistanceX", -1, 1, 59, 2, Q("1 mm")))
sketch5.addConstraint(Sketcher.Constraint("DistanceX", -1, 1, 0, 2, Q("14.5 mm")))
sketch5.addConstraint(Sketcher.Constraint("DistanceY", 32, 1, 32, 2, Q("2.573099 mm")))
sketch5.addConstraint(Sketcher.Constraint("DistanceX", 7, 2, 7, 1, Q("0.05848 mm")))
sketch5.addConstraint(Sketcher.Constraint("DistanceX", 11, 2, 11, 1, Q("0.05848 mm")))
sketch5.addConstraint(Sketcher.Constraint("DistanceX", 17, 1, 17, 2, Q("0.05848 mm")))
sketch5.addConstraint(Sketcher.Constraint("DistanceX", 25, 2, 25, 1, Q("1.169591 mm")))
sketch5.addConstraint(Sketcher.Constraint("DistanceX", 29, 2, 29, 1, Q("1.169591 mm")))
sketch5.addConstraint(Sketcher.Constraint("DistanceX", 47, 1, 47, 2, Q("1.491228 mm")))
sketch5.addConstraint(Sketcher.Constraint("DistanceY", 6, 2, 6, 1, Q("3.567251 mm")))
sketch5.addConstraint(Sketcher.Constraint("DistanceY", 12, 1, 12, 2, Q("3.567251 mm")))
sketch5.addConstraint(Sketcher.Constraint("DistanceY", 56, 2, 56, 1, Q("0.390889 mm")))
sketch5.addConstraint(Sketcher.Constraint("DistanceY", 58, 2, 58, 1, Q("0.39436 mm")))
sketch5.addConstraint(Sketcher.Constraint("DistanceY", 63, 1, 63, 2, Q("0.390889 mm")))
sketch5.addConstraint(Sketcher.Constraint("DistanceX", -1, 1, 15, 2, Q("19.710798 mm")))
sketch5.addConstraint(Sketcher.Constraint("Distance", 8, Q("3.635621 mm")))
sketch5.addConstraint(Sketcher.Constraint("Distance", 10, Q("3.635621 mm")))
sketch5.addConstraint(Sketcher.Constraint("Distance", 16, Q("3.366131 mm")))
sketch5.addConstraint(Sketcher.Constraint("Distance", 18, Q("3.366131 mm")))
sketch5.addConstraint(Sketcher.Constraint("Distance", 34, Q("0.41865 mm")))
sketch5.addConstraint(Sketcher.Constraint("Distance", 53, Q("0.850489 mm")))
sketch5.addConstraint(Sketcher.Constraint("Distance", 67, Q("0.86077 mm")))
sketch5.addConstraint(Sketcher.Constraint("DistanceX", 5, 2, 5, 1, Q("0.584795 mm")))
sketch5.addConstraint(Sketcher.Constraint("DistanceX", 9, 2, 9, 1, Q("0.467836 mm")))
sketch5.addConstraint(Sketcher.Constraint("DistanceX", 13, 2, 13, 1, Q("0.584795 mm")))
sketch5.addConstraint(Sketcher.Constraint("DistanceX", 15, 1, 15, 2, Q("0.906433 mm")))
sketch5.addConstraint(Sketcher.Constraint("DistanceX", 19, 1, 19, 2, Q("0.906433 mm")))
sketch5.addConstraint(Sketcher.Constraint("DistanceX", 20, 2, 20, 1, Q("0.672515 mm")))
sketch5.addConstraint(Sketcher.Constraint("DistanceX", 27, 2, 27, 1, Q("0.672515 mm")))
sketch5.addConstraint(Sketcher.Constraint("DistanceX", 33, 2, 33, 1, Q("0.497076 mm")))
sketch5.addConstraint(Sketcher.Constraint("DistanceX", 45, 2, 45, 1, Q("0.906433 mm")))
sketch5.addConstraint(Sketcher.Constraint("DistanceX", 55, 2, 55, 1, Q("1.077657 mm")))
sketch5.addConstraint(Sketcher.Constraint("DistanceX", 57, 1, 57, 2, Q("1.077657 mm")))
sketch5.addConstraint(Sketcher.Constraint("DistanceX", 64, 2, 64, 1, Q("1.077223 mm")))
sketch5.addConstraint(Sketcher.Constraint("DistanceX", 69, 1, 69, 2, Q("1.077223 mm")))
sketch5.addConstraint(Sketcher.Constraint("DistanceY", 24, 1, 24, 2, Q("0.555556 mm")))
sketch5.addConstraint(Sketcher.Constraint("DistanceY", 26, 1, 26, 2, Q("4.444444 mm")))
sketch5.addConstraint(Sketcher.Constraint("DistanceY", 28, 2, 28, 1, Q("4.444444 mm")))
sketch5.addConstraint(Sketcher.Constraint("DistanceY", 44, 2, 44, 1, Q("0.321637 mm")))
sketch5.addConstraint(Sketcher.Constraint("DistanceY", 54, 2, 54, 1, Q("0.380043 mm")))
sketch5.addConstraint(Sketcher.Constraint("DistanceY", 65, 1, 65, 2, Q("0.382646 mm")))
sketch5.addConstraint(Sketcher.Constraint("DistanceY", 68, 1, 68, 2, Q("0.385683 mm")))
sketch5.addConstraint(Sketcher.Constraint("DistanceX", -1, 1, 4, 2, Q("21.96226 mm")))
sketch5.addConstraint(Sketcher.Constraint("DistanceY", 4, 2, -1, 1, Q("17.792969 mm")))
sketch5.addConstraint(Sketcher.Constraint("DistanceX", -1, 1, 8, 2, Q("20.617231 mm")))
sketch5.addConstraint(Sketcher.Constraint("DistanceY", 20, 2, -1, 1, Q("17.792969 mm")))
sketch5.addConstraint(Sketcher.Constraint("DistanceX", -1, 1, 22, 2, Q("24.447641 mm")))
sketch5.addConstraint(Sketcher.Constraint("DistanceX", -1, 1, 24, 2, Q("29.359921 mm")))
sketch5.addConstraint(Sketcher.Constraint("DistanceY", 26, 2, -1, 1, Q("17.792969 mm")))
sketch5.addConstraint(Sketcher.Constraint("DistanceY", 48, 2, -1, 1, Q("17.64677 mm")))
sketch5.addConstraint(Sketcher.Constraint("DistanceY", 59, 2, -1, 1, Q("9.64677 mm")))
sketch5.addConstraint(Sketcher.Constraint("DistanceX", -1, 1, 63, 2, Q("3.551151 mm")))
sketch5.addConstraint(Sketcher.Constraint("DistanceY", 63, 2, -1, 1, Q("10.362171 mm")))
sketch5.addConstraint(Sketcher.Constraint("DistanceY", 66, 2, -1, 1, Q("10.563039 mm")))
sketch5.addConstraint(Sketcher.Constraint("Distance", 52, Q("0.872206 mm")))
sketch5.addConstraint(Sketcher.Constraint("DistanceX", -1, 1, 52, 2, Q("3.383336 mm")))
sketch5.addConstraint(Sketcher.Constraint("DistanceY", 52, 2, -1, 1, Q("18.647157 mm")))
pocket3 = body.newObject("PartDesign::Pocket", "Pocket002")
pocket3.Profile = sketch5
pocket3.Length = 0.1
pocket3.Reversed = True

sketch6 = body.newObject("Sketcher::SketchObject", "Sketch005")
sketch6.AttachmentSupport = (doc.getObject("YZ_Plane"), [""])
sketch6.MapMode = "FlatFace"
sketch6.AttachmentOffset = App.Placement(V(0, 0, 60), App.Rotation())
sketch6.addGeometry(Part.Circle(V(5, -11, 0), V(0, 0, 1), 4), False)
sketch6.addConstraint(Sketcher.Constraint("Diameter", 0, Q("8 mm")))
sketch6.addConstraint(Sketcher.Constraint("DistanceX", -1, 1, 0, 3, Q("5 mm")))
sketch6.addConstraint(Sketcher.Constraint("DistanceY", 0, 3, -1, 1, Q("11 mm")))
pad3 = body.newObject("PartDesign::Pad", "Pad002")
pad3.Profile = sketch6
pad3.Length = 1.5

sketch7 = body.newObject("Sketcher::SketchObject", "Sketch006")
sketch7.AttachmentSupport = (doc.getObject("YZ_Plane"), [""])
sketch7.MapMode = "FlatFace"
sketch7.AttachmentOffset = App.Placement(V(0, 0, 61.5), App.Rotation())
sketch7.addGeometry(Part.Circle(V(5, -11, 0), V(0, 0, 1), 2), False)
sketch7.addConstraint(Sketcher.Constraint("Diameter", 0, Q("4 mm")))
sketch7.addConstraint(Sketcher.Constraint("DistanceX", -1, 1, 0, 3, Q("5 mm")))
sketch7.addConstraint(Sketcher.Constraint("DistanceY", 0, 3, -1, 1, Q("11 mm")))
pad4 = body.newObject("PartDesign::Pad", "Pad003")
pad4.Profile = sketch7
pad4.Length = 3

doc.recompute()
